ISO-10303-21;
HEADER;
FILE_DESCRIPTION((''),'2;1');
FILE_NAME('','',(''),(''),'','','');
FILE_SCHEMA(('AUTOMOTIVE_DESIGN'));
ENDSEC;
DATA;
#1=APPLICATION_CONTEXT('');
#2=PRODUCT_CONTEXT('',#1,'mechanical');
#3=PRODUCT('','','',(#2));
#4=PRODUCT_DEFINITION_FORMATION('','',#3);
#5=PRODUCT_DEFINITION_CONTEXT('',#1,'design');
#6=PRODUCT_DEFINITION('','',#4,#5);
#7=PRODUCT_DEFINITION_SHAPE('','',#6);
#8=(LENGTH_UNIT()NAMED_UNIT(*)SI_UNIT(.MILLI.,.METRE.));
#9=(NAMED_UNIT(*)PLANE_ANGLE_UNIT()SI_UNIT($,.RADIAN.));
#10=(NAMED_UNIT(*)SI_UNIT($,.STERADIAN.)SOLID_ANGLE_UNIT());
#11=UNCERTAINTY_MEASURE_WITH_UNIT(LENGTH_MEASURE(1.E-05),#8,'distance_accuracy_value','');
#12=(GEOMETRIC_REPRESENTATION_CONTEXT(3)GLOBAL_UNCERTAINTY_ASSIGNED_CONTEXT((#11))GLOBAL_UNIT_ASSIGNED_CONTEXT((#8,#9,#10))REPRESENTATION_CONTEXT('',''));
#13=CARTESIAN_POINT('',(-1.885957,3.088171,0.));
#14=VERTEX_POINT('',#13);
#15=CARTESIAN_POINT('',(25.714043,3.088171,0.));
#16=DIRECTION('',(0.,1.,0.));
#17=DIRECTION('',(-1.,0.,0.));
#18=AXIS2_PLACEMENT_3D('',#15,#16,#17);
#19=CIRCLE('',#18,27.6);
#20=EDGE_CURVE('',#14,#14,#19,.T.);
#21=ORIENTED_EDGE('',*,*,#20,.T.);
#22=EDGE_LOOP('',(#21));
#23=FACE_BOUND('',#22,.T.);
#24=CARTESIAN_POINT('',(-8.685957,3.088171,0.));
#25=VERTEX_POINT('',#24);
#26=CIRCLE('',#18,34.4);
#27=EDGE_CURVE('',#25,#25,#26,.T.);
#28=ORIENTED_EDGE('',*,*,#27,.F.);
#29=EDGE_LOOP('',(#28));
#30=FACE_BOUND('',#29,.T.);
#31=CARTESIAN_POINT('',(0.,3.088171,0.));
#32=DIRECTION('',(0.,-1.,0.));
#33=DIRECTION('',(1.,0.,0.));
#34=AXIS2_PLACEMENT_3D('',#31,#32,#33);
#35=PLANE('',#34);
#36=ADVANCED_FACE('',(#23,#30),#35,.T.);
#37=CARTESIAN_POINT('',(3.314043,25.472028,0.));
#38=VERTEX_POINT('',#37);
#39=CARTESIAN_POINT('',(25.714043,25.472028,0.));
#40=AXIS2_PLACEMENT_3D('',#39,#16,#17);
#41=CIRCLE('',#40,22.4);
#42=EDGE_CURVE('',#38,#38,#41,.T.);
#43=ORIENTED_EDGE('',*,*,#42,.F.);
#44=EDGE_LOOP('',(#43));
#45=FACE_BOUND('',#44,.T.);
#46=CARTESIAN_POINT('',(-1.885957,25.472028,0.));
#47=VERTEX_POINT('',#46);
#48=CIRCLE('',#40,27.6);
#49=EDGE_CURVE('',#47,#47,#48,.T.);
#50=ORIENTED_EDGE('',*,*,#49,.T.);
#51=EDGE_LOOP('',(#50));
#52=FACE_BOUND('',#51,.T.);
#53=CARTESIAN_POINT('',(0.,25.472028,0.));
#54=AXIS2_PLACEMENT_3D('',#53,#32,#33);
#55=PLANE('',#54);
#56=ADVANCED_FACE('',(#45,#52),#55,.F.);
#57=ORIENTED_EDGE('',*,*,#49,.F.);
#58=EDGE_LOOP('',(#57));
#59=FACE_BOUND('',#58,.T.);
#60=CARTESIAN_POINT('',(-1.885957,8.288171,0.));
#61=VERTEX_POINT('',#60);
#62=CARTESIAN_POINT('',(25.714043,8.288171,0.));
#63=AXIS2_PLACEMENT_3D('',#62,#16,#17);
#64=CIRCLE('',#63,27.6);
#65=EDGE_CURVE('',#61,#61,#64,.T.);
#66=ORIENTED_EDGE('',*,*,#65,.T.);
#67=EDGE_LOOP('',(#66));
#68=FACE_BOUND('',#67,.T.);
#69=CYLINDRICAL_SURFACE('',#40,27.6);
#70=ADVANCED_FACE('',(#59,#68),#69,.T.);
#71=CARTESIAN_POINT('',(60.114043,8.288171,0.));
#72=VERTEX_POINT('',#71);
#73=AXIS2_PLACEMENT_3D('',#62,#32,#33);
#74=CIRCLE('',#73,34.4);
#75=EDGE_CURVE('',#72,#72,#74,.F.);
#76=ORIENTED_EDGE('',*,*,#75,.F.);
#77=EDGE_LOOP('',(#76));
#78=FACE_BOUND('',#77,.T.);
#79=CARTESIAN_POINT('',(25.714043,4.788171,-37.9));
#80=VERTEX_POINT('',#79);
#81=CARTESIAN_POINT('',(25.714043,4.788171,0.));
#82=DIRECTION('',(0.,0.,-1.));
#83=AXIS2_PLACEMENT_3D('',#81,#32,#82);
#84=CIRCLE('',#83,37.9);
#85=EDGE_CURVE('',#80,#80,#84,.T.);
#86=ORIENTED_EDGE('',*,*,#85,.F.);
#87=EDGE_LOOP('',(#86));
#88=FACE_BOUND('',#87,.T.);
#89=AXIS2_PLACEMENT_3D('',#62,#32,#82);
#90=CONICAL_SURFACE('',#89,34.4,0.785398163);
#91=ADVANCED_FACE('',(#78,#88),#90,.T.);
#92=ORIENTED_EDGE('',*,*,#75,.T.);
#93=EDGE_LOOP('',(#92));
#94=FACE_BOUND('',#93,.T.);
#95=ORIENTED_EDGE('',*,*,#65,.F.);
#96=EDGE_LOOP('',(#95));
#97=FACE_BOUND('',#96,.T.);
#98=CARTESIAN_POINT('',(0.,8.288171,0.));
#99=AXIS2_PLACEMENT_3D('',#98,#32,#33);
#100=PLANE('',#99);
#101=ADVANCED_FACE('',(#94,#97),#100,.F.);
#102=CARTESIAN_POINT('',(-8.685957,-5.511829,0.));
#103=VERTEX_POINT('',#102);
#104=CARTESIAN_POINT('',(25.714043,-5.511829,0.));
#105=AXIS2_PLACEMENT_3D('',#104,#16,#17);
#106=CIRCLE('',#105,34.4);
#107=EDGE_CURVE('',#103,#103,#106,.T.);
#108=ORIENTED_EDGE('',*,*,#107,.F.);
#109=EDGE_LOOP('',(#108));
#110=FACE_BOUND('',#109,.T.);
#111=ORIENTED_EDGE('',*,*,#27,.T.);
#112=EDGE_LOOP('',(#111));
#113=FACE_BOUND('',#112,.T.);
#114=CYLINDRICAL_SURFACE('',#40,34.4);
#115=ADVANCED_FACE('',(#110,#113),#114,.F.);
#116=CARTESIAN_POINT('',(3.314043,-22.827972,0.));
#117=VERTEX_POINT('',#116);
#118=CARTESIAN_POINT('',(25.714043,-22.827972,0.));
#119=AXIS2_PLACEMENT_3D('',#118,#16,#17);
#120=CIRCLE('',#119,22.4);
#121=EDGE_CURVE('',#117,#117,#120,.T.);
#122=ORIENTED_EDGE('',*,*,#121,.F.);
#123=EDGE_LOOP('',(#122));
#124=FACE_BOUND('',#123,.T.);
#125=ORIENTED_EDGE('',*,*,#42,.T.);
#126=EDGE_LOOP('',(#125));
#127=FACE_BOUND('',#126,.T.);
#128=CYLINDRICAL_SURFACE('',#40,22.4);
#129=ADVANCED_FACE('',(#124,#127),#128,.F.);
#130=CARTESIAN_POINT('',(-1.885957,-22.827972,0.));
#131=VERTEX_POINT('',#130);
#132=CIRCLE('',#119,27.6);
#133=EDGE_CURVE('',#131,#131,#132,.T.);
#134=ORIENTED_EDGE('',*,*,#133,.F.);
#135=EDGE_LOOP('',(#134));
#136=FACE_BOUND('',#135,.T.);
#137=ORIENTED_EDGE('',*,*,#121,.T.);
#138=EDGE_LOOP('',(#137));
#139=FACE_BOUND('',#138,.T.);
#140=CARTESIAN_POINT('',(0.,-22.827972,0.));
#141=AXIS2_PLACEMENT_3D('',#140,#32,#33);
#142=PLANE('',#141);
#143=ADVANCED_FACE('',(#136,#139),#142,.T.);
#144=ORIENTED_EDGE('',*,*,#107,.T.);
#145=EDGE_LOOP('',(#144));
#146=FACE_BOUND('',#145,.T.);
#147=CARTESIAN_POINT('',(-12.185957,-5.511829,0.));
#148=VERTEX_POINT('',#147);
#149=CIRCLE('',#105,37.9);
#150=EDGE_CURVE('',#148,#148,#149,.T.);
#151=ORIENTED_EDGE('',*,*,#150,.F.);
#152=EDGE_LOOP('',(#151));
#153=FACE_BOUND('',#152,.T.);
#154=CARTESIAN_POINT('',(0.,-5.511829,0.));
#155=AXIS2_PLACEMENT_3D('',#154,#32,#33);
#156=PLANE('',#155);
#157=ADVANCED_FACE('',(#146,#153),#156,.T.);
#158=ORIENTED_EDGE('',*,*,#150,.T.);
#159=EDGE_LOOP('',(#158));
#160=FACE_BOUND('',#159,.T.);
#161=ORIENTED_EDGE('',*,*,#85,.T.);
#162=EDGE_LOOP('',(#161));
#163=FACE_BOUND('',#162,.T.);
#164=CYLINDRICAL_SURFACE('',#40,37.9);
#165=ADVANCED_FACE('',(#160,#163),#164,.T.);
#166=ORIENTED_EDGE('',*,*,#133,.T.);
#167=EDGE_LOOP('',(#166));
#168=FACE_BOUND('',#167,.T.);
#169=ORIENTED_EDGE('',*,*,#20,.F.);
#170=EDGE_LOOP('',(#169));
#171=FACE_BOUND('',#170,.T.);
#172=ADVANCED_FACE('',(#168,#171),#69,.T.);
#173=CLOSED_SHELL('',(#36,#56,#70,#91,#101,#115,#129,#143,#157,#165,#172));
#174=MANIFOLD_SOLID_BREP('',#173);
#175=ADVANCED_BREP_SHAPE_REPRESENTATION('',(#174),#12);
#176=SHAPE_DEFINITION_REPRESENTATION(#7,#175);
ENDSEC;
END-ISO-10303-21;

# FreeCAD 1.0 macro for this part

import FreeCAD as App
import Part
import Sketcher
from FreeCAD import Vector
Q = App.Units.Quantity


def edges_at(feature, points):
    """Names of the edges that pass closest to the given points."""
    edges = feature.Shape.Edges
    near = lambda p: min(range(len(edges)), key=lambda i: edges[i].distToShape(Part.Vertex(*p))[0])
    return sorted({f"Edge{near(p) + 1}" for p in points})

doc = App.newDocument("Part")
body = doc.addObject("PartDesign::Body", "Body")

# Sketch on XY plane
sketch1 = body.newObject("Sketcher::SketchObject", "Sketch")
sketch1.AttachmentSupport = (doc.getObject("XY_Plane"), [""])
sketch1.MapMode = "FlatFace"
sketch1.addGeometry([
    Part.LineSegment(Vector(-8.7, 3.1, 0), Vector(-1.9, 3.1, 0)),  # 0
    Part.LineSegment(Vector(-1.9, 3.1, 0), Vector(-1.9, -22.8, 0)),  # 1
    Part.LineSegment(Vector(-1.9, -22.8, 0), Vector(3.3, -22.8, 0)),  # 2
    Part.LineSegment(Vector(3.3, -22.8, 0), Vector(3.3, 25.5, 0)),  # 3
    Part.LineSegment(Vector(3.3, 25.5, 0), Vector(-1.9, 25.5, 0)),  # 4
    Part.LineSegment(Vector(-1.9, 25.5, 0), Vector(-1.9, 8.3, 0)),  # 5
    Part.LineSegment(Vector(-1.9, 8.3, 0), Vector(-12.2, 8.3, 0)),  # 6
    Part.LineSegment(Vector(-12.2, 8.3, 0), Vector(-12.2, -5.5, 0)),  # 7
    Part.LineSegment(Vector(-12.2, -5.5, 0), Vector(-8.7, -5.5, 0)),  # 8
    Part.LineSegment(Vector(-8.7, -5.5, 0), Vector(-8.7, 3.1, 0)),  # 9
], False)
sketch1.addGeometry(Part.LineSegment(Vector(25.7, 25.5, 0), Vector(25.7, -22.8, 0)), True)  # axis
sketch1.addConstraint([
    Sketcher.Constraint("Coincident", 0, 2, 1, 1),
    Sketcher.Constraint("Coincident", 1, 2, 2, 1),
    Sketcher.Constraint("Coincident", 2, 2, 3, 1),
    Sketcher.Constraint("Coincident", 3, 2, 4, 1),
    Sketcher.Constraint("Coincident", 4, 2, 5, 1),
    Sketcher.Constraint("Coincident", 5, 2, 6, 1),
    Sketcher.Constraint("Coincident", 6, 2, 7, 1),
    Sketcher.Constraint("Coincident", 7, 2, 8, 1),
    Sketcher.Constraint("Coincident", 8, 2, 9, 1),
    Sketcher.Constraint("Coincident", 9, 2, 0, 1),
    Sketcher.Constraint("Horizontal", 0),
    Sketcher.Constraint("Vertical", 1),
    Sketcher.Constraint("Horizontal", 2),
    Sketcher.Constraint("Vertical", 3),
    Sketcher.Constraint("Horizontal", 4),
    Sketcher.Constraint("Vertical", 5),
    Sketcher.Constraint("Horizontal", 6),
    Sketcher.Constraint("Vertical", 7),
    Sketcher.Constraint("Horizontal", 8),
    Sketcher.Constraint("Vertical", 9),
    Sketcher.Constraint("Vertical", 10),
    Sketcher.Constraint("Horizontal", 4, 2, 10, 1),
    Sketcher.Constraint("Horizontal", 2, 2, 10, 2),
    Sketcher.Constraint("Vertical", 1, 2, 4, 2),
    Sketcher.Constraint("DistanceX", 0, 1, 0, 2, Q("6.8 mm")),
    Sketcher.Constraint("DistanceX", 2, 1, 2, 2, Q("5.2 mm")),
    Sketcher.Constraint("DistanceX", 6, 2, 6, 1, Q("10.3 mm")),
    Sketcher.Constraint("DistanceY", 3, 1, 3, 2, Q("48.3 mm")),
    Sketcher.Constraint("DistanceY", 7, 2, 7, 1, Q("13.8 mm")),
    Sketcher.Constraint("DistanceY", 9, 1, 9, 2, Q("8.6 mm")),
    Sketcher.Constraint("DistanceX", 3, 2, 10, 1, Q("22.4 mm")),
    Sketcher.Constraint("DistanceY", 1, 2, 1, 1, Q("25.916143 mm")),
    Sketcher.Constraint("DistanceY", -1, 1, 0, 2, Q("3.088171 mm")),
    Sketcher.Constraint("DistanceX", 0, 2, -1, 1, Q("1.885957 mm")),
])
revolution = body.newObject("PartDesign::Revolution", "Revolution")
revolution.Profile = sketch1
revolution.ReferenceAxis = (sketch1, ["Axis0"])
revolution.Angle = 360
doc.recompute()

chamfer = body.newObject("PartDesign::Chamfer", "Chamfer")
chamfer.Base = (revolution, edges_at(revolution, [(63.614, 8.288, 0)]))
chamfer.Size = 3.5

doc.recompute()
